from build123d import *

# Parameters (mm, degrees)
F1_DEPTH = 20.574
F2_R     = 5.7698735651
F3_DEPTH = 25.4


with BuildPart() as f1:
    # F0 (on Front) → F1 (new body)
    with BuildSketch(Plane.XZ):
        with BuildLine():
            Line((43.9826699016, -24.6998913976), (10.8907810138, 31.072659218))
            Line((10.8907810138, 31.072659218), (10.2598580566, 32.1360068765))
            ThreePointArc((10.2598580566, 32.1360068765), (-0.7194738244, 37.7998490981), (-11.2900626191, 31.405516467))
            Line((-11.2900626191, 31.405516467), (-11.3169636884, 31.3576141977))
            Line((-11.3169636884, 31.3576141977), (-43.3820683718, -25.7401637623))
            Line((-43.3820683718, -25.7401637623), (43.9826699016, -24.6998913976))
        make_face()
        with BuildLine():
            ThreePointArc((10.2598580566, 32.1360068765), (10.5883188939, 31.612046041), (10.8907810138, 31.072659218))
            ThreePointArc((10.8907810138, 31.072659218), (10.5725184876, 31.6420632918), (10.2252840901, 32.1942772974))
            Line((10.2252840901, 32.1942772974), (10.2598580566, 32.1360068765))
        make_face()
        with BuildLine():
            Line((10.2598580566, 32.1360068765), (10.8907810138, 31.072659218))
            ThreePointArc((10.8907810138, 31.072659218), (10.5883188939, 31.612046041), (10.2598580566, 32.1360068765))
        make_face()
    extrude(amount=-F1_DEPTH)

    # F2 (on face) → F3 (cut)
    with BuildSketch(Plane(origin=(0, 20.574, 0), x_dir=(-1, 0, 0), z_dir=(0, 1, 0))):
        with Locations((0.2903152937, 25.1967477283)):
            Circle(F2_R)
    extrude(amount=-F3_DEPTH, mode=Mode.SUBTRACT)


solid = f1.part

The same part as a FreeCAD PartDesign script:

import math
import FreeCAD as App
import Part
import Sketcher
from FreeCAD import Vector
Q = App.Units.Quantity

doc = App.newDocument("Part")
body = doc.addObject("PartDesign::Body", "Body")

# Sketch on XZ plane
sketch1 = body.newObject("Sketcher::SketchObject", "Sketch")
sketch1.AttachmentSupport = (doc.getObject("XZ_Plane"), [""])
sketch1.MapMode = "FlatFace"
sketch1.addGeometry([
    Part.LineSegment(Vector(43.98267, -24.699891, 0), Vector(10.890781, 31.072659, 0)),  # 0
    Part.ArcOfCircle(Part.Circle(Vector(-0.290315, 25.196748, 0), Vector(0, 0, 1), 12.631043), math.radians(27.722911), math.radians(33.641493)),  # 1
    Part.LineSegment(Vector(10.225284, 32.194277, 0), Vector(10.259858, 32.136007, 0)),  # 2
    Part.ArcOfCircle(Part.Circle(Vector(-0.290912, 25.157002, 0), Vector(0, 0, 1), 12.650109), math.radians(33.483393), math.radians(150.399498)),  # 3
    Part.LineSegment(Vector(-11.290063, 31.405516, 0), Vector(-11.316964, 31.357614, 0)),  # 4
    Part.LineSegment(Vector(-11.316964, 31.357614, 0), Vector(-43.382068, -25.740164, 0)),  # 5
    Part.LineSegment(Vector(-43.382068, -25.740164, 0), Vector(43.98267, -24.699891, 0)),  # 6
], False)
sketch1.addConstraint([
    Sketcher.Constraint("Coincident", 0, 2, 1, 1),
    Sketcher.Constraint("Coincident", 1, 2, 2, 1),
    Sketcher.Constraint("Coincident", 2, 2, 3, 1),
    Sketcher.Constraint("Coincident", 3, 2, 4, 1),
    Sketcher.Constraint("Coincident", 4, 2, 5, 1),
    Sketcher.Constraint("Coincident", 5, 2, 6, 1),
    Sketcher.Constraint("Coincident", 6, 2, 0, 1),
    Sketcher.Constraint("Parallel", 0, 2),
    Sketcher.Constraint("Parallel", 4, 5),
    Sketcher.Constraint("Radius", 3, 12.650109),
    Sketcher.Constraint("DistanceX", 1, 3, 1, 2, Q("0.414 in")),
    Sketcher.Constraint("Radius", 1, 12.631043),
    Sketcher.Constraint("DistanceY", 3, 3, 0, 2, Q("0.2328999 in")),
    Sketcher.Constraint("DistanceY", -1, 1, 3, 3, 25.157002),
    Sketcher.Constraint("DistanceX", 4, 2, 3, 2, 0.026901),
    Sketcher.Constraint("DistanceY", 6, 2, 2, 2, 56.835898),
    Sketcher.Constraint("Distance", 5, 65.48532),
    Sketcher.Constraint("Distance", 6, 87.370931),
    Sketcher.Constraint("DistanceX", 3, 3, -1, 1, 0.290912),
    Sketcher.Constraint("DistanceX", -1, 1, 0, 2, 10.890781),
    Sketcher.Constraint("DistanceX", -1, 1, 2, 2, 10.259858),
    Sketcher.Constraint("DistanceX", 5, 2, -1, 1, 43.382068),
    Sketcher.Constraint("DistanceX", -1, 1, 6, 2, 43.98267),
])
pad1 = body.newObject("PartDesign::Pad", "Pad")
pad1.Profile = sketch1
pad1.Length = Q("0.81 in")
pad1.Reversed = True

# Sketch on XZ plane
sketch2 = body.newObject("Sketcher::SketchObject", "Sketch001")
sketch2.AttachmentSupport = (doc.getObject("XZ_Plane"), [""])
sketch2.MapMode = "FlatFace"
sketch2.AttachmentOffset = App.Placement(Vector(0, 0, -0.81 * 25.4), App.Rotation())
sketch2.addGeometry(Part.Circle(Vector(-0.290315, 25.196748, 0), Vector(0, 0, 1), 5.769874), False)
sketch2.addConstraint([
    Sketcher.Constraint("Diameter", 0, 11.539747),
    Sketcher.Constraint("DistanceX", 0, 3, -1, 1, 0.290315),
    Sketcher.Constraint("DistanceY", -1, 1, 0, 3, 25.196748),
])
pocket1 = body.newObject("PartDesign::Pocket", "Pocket")
pocket1.Profile = sketch2
pocket1.Length = Q("1 in")
pocket1.Reversed = True

doc.recompute()
